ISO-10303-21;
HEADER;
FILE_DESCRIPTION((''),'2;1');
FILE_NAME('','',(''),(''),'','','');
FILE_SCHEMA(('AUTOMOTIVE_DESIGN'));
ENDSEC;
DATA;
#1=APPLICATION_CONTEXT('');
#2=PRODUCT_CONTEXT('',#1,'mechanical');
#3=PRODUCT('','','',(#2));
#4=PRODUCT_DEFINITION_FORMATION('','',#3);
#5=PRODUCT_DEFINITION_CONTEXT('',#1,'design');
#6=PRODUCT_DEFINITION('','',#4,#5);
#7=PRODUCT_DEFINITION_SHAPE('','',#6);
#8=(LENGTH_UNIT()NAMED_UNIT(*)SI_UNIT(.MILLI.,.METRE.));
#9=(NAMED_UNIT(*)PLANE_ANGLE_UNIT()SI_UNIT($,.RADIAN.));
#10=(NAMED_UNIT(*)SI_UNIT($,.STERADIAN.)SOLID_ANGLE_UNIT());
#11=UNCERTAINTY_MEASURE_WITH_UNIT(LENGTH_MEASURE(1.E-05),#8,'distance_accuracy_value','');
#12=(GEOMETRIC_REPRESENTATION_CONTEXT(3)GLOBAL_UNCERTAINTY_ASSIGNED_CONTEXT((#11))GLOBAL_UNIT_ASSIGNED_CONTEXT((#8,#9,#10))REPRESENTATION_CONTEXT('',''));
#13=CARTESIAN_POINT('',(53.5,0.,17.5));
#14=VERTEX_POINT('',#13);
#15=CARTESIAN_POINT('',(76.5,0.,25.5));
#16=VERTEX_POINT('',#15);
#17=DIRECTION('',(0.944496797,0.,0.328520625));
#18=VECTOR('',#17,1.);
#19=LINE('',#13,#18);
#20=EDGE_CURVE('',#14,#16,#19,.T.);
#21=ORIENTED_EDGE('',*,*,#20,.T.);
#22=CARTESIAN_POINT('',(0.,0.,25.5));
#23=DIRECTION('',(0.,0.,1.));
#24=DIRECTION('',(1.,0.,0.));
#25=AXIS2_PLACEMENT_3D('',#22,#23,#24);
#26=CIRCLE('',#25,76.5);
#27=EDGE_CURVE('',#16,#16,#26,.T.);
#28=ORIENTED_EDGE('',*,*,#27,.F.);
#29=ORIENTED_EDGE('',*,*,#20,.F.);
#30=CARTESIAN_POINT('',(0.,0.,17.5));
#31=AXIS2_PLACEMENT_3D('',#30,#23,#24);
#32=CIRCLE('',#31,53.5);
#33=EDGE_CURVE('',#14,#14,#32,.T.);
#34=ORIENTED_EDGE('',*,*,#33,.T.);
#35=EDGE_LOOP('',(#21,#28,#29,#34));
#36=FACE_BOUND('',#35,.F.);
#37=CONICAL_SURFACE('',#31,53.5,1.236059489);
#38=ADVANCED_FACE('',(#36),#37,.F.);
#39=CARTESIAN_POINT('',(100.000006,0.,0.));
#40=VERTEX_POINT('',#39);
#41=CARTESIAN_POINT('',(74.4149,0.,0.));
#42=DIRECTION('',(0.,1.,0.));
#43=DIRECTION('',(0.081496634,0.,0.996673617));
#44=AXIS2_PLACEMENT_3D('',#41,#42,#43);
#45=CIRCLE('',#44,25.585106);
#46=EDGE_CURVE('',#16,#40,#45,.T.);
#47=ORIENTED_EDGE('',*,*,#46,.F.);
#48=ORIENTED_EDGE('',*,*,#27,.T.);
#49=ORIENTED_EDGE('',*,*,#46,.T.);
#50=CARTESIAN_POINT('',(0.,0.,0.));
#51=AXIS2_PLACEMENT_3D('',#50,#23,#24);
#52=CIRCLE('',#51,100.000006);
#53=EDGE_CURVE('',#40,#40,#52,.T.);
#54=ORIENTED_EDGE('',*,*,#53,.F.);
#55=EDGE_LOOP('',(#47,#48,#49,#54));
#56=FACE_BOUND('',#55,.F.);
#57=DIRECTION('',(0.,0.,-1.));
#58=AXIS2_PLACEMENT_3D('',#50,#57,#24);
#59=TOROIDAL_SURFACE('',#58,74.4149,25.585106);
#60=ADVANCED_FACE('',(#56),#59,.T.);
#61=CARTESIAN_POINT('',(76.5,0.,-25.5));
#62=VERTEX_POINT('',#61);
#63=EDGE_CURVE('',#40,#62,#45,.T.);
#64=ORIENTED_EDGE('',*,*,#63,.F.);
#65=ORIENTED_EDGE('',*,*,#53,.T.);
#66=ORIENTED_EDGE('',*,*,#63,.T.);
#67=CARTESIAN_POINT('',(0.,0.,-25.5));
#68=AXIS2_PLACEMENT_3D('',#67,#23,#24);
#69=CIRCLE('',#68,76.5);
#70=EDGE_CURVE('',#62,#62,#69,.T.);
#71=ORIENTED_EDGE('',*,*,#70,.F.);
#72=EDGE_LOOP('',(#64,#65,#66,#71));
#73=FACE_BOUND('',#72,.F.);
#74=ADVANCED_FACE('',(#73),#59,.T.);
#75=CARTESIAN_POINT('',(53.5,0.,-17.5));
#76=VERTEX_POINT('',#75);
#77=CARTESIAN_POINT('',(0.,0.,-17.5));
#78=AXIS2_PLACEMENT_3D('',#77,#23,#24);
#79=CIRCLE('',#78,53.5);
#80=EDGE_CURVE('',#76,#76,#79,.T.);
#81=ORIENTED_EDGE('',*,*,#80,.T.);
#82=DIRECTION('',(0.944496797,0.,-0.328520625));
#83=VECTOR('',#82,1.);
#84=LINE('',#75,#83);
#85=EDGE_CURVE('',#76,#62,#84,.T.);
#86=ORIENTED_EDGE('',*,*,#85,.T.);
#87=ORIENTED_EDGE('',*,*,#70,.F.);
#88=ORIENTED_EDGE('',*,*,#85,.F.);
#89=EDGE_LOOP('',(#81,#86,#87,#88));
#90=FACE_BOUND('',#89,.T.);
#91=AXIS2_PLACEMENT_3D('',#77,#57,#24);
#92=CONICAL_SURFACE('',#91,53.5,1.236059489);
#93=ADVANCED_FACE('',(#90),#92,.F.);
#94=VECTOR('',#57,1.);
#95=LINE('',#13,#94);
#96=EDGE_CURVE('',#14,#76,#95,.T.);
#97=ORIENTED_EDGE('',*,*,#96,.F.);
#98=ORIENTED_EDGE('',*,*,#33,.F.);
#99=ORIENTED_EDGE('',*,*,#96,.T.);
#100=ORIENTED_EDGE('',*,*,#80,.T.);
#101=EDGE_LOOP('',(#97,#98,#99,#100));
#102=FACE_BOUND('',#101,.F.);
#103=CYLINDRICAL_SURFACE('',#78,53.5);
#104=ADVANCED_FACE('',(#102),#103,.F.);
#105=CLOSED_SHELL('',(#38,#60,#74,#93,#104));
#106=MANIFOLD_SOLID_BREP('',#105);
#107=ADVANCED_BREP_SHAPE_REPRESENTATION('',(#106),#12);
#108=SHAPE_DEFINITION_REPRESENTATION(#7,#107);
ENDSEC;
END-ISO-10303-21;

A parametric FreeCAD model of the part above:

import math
import FreeCAD as App
import Part
import Sketcher

V = App.Vector
Q = App.Units.Quantity

doc = App.newDocument("Part")
body = doc.addObject("PartDesign::Body", "Body")

sketch1 = doc.addObject("Sketcher::SketchObject", "Sketch")
body.addObject(sketch1)
sketch1.AttachmentSupport = (doc.XZ_Plane, [""])
sketch1.MapMode = "FlatFace"
sketch1.addGeometry(Part.LineSegment(V(53.5, -17.5, 0), V(53.5, 17.5, 0)), False)
sketch1.addGeometry(Part.LineSegment(V(53.5, 17.5, 0), V(76.5, 25.5, 0)), False)
sketch1.addGeometry(Part.ArcOfCircle(Part.Circle(V(74.4149, 0, 0), V(0, 0, 1), 25.585106), math.radians(-85.325403), math.radians(85.325403)), False)
sketch1.addGeometry(Part.LineSegment(V(76.5, -25.5, 0), V(53.5, -17.5, 0)), False)
sketch1.addConstraint(Sketcher.Constraint("Coincident", 0, 2, 1, 1))
sketch1.addConstraint(Sketcher.Constraint("Coincident", 1, 2, 2, 2))
sketch1.addConstraint(Sketcher.Constraint("Coincident", 2, 1, 3, 1))
sketch1.addConstraint(Sketcher.Constraint("Coincident", 3, 2, 0, 1))
sketch1.addConstraint(Sketcher.Constraint("Vertical", 0))
sketch1.addConstraint(Sketcher.Constraint("Symmetric", 1, 2, 2, 1, -1))
sketch1.addConstraint(Sketcher.Constraint("Equal", 1, 3))
sketch1.addConstraint(Sketcher.Constraint("DistanceY", 0, 1, 0, 2, Q("35 mm")))
sketch1.addConstraint(Sketcher.Constraint("DistanceX", 0, 2, 1, 2, Q("23 mm")))
sketch1.addConstraint(Sketcher.Constraint("DistanceY", 0, 2, 1, 2, Q("8 mm")))
sketch1.addConstraint(Sketcher.Constraint("Radius", 2, Q("25.585 mm")))
sketch1.addConstraint(Sketcher.Constraint("DistanceX", -1, 1, 0, 2, Q("53.5 mm")))
revolution = doc.addObject("PartDesign::Revolution", "Revolution")
body.addObject(revolution)
revolution.Profile = sketch1
revolution.ReferenceAxis = (sketch1, ["V_Axis"])
revolution.Angle = 360

doc.recompute()
